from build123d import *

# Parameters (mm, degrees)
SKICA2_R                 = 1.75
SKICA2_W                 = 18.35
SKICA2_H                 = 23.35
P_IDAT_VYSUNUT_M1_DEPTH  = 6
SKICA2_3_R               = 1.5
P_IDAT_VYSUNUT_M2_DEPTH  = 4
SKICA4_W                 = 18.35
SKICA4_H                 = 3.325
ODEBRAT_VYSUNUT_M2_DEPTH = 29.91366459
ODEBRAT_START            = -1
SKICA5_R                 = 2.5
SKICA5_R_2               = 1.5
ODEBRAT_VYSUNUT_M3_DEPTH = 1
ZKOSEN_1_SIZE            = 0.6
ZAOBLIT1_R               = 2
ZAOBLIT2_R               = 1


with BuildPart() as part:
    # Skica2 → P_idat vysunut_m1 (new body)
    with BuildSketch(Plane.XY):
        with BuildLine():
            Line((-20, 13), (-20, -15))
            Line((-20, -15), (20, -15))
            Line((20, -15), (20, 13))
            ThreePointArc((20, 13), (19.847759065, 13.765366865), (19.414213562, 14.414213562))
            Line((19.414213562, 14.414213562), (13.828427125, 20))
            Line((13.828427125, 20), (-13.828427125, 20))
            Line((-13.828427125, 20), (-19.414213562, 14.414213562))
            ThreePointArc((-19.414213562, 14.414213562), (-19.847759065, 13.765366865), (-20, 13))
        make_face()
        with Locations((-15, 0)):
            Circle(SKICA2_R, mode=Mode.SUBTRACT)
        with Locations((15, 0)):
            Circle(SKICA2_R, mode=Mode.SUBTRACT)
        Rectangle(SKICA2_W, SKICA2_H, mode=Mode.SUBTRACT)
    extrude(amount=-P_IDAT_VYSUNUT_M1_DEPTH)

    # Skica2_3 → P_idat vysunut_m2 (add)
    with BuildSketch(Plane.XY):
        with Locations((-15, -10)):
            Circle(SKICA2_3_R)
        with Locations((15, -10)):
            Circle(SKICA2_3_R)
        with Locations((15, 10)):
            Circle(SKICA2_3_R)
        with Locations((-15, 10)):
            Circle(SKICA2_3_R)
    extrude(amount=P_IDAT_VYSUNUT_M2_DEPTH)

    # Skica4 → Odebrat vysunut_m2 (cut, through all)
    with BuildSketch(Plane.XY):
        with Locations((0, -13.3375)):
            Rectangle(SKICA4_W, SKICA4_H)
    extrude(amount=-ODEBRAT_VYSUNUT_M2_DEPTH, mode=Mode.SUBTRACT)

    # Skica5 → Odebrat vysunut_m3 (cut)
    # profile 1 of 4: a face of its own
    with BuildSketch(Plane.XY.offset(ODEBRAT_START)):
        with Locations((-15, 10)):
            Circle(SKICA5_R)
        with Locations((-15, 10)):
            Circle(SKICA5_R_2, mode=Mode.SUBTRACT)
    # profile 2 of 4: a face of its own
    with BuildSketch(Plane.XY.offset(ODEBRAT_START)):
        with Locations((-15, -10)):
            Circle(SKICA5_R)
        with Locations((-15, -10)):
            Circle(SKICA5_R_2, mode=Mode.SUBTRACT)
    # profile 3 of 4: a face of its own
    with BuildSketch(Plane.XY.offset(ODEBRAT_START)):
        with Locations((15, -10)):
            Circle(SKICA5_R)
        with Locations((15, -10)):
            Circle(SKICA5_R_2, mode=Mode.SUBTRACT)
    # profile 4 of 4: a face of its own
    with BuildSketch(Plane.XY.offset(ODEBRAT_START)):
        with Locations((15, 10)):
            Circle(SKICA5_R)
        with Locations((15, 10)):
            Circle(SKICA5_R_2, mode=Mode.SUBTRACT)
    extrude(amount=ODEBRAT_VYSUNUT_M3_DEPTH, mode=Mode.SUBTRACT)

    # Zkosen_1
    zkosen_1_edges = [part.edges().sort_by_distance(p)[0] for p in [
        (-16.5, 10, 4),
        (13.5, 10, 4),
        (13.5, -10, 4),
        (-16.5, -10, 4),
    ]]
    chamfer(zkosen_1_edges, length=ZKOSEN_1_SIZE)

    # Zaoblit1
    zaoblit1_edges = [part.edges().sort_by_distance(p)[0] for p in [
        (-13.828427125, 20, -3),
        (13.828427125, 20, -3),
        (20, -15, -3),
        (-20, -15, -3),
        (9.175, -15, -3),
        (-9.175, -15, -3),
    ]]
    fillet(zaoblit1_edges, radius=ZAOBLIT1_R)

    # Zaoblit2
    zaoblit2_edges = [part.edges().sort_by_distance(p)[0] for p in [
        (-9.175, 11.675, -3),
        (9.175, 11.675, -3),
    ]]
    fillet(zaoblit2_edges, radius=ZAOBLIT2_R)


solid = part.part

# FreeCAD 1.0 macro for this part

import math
import FreeCAD as App
import Part
import Sketcher
from FreeCAD import Vector


def edges_at(feature, points):
    """Names of the edges that pass closest to the given points."""
    edges = feature.Shape.Edges
    near = lambda p: min(range(len(edges)), key=lambda i: edges[i].distToShape(Part.Vertex(*p))[0])
    return sorted({f"Edge{near(p) + 1}" for p in points})


def add_polygon(sketch, points):
    """Adds a closed chain of lines whose ends are joined by coincident constraints."""
    first, n = sketch.GeometryCount, len(points)
    for a, b in zip(points, points[1:] + points[:1]):
        sketch.addGeometry(Part.LineSegment(App.Vector(*a, 0), App.Vector(*b, 0)), False)
    for i in range(n):
        sketch.addConstraint(Sketcher.Constraint("Coincident", first + i, 2, first + (i + 1) % n, 1))

doc = App.newDocument("Part")
body = doc.addObject("PartDesign::Body", "Body")

# Sketch on XY plane
sketch1 = body.newObject("Sketcher::SketchObject", "Sketch")
sketch1.AttachmentSupport = (doc.getObject("XY_Plane"), [""])
sketch1.MapMode = "FlatFace"
sketch1.addGeometry(Part.LineSegment(Vector(-20, 13, 0), Vector(-20, -15, 0)), False)  # 0
sketch1.addGeometry(Part.LineSegment(Vector(-20, -15, 0), Vector(20, -15, 0)), False)  # 1
sketch1.addGeometry(Part.LineSegment(Vector(20, -15, 0), Vector(20, 13, 0)), False)  # 2
sketch1.addGeometry(Part.ArcOfCircle(Part.Circle(Vector(18, 13, 0), Vector(0, 0, 1), 2), math.radians(0), math.radians(45)), False)  # 3
sketch1.addGeometry(Part.LineSegment(Vector(19.414214, 14.414214, 0), Vector(13.828427, 20, 0)), False)  # 4
sketch1.addGeometry(Part.LineSegment(Vector(13.828427, 20, 0), Vector(-13.828427, 20, 0)), False)  # 5
sketch1.addGeometry(Part.LineSegment(Vector(-13.828427, 20, 0), Vector(-19.414214, 14.414214, 0)), False)  # 6
sketch1.addGeometry(Part.ArcOfCircle(Part.Circle(Vector(-18, 13, 0), Vector(0, 0, 1), 2), math.radians(135), math.radians(180)), False)  # 7
sketch1.addGeometry(Part.Circle(Vector(-15, 0, 0), Vector(0, 0, 1), 1.75), False)  # 8
add_polygon(sketch1, [(9.175, -11.675), (-9.175, -11.675), (-9.175, 11.675), (9.175, 11.675)])  # lines 9-12
sketch1.addGeometry(Part.Circle(Vector(15, 0, 0), Vector(0, 0, 1), 1.75), False)  # 13
sketch1.addConstraint([
    Sketcher.Constraint("Coincident", 0, 2, 1, 1),
    Sketcher.Constraint("Coincident", 1, 2, 2, 1),
    Sketcher.Constraint("Tangent", 2, 2, 3, 1),
    Sketcher.Constraint("Tangent", 3, 2, 4, 1),
    Sketcher.Constraint("Coincident", 4, 2, 5, 1),
    Sketcher.Constraint("Coincident", 5, 2, 6, 1),
    Sketcher.Constraint("Tangent", 6, 2, 7, 1),
    Sketcher.Constraint("Tangent", 7, 2, 0, 1),
    Sketcher.Constraint("Vertical", 0),
    Sketcher.Constraint("Horizontal", 1),
    Sketcher.Constraint("Vertical", 2),
    Sketcher.Constraint("Horizontal", 5),
    Sketcher.Constraint("Horizontal", 9),
    Sketcher.Constraint("Vertical", 10),
    Sketcher.Constraint("Horizontal", 11),
    Sketcher.Constraint("Vertical", 12),
    Sketcher.Constraint("Equal", 3, 7),
    Sketcher.Constraint("Equal", 8, 13),
    Sketcher.Constraint("Symmetric", 8, 3, 13, 3, -1, 1),
    Sketcher.Constraint("Symmetric", 9, 2, 11, 2, -1, 1),
    Sketcher.Constraint("Symmetric", 3, 3, 7, 3, -2),
    Sketcher.Constraint("PointOnObject", 8, 3, -1),
    Sketcher.Constraint("Perpendicular", 4, 6),
    Sketcher.Constraint("Horizontal", 3, 2, 6, 2),
    Sketcher.Constraint("Radius", 3, 2.0),
    Sketcher.Constraint("Diameter", 8, 3.5),
    Sketcher.Constraint("DistanceX", 1, 1, 1, 2, 40.0),
    Sketcher.Constraint("DistanceY", 0, 2, 0, 1, 28.0),
    Sketcher.Constraint("DistanceY", -1, 1, 3, 3, 13.0),
    Sketcher.Constraint("DistanceX", 8, 3, -1, 1, 15.0),
    Sketcher.Constraint("DistanceY", -1, 1, 4, 2, 20.0),
    Sketcher.Constraint("DistanceX", 9, 2, 9, 1, 18.35),
    Sketcher.Constraint("DistanceY", 10, 1, 10, 2, 23.35),
])
pad1 = body.newObject("PartDesign::Pad", "Pad")
pad1.Profile = sketch1
pad1.Length = 6
pad1.Reversed = True

# Sketch on XY plane
sketch2 = body.newObject("Sketcher::SketchObject", "Sketch001")
sketch2.AttachmentSupport = (doc.getObject("XY_Plane"), [""])
sketch2.MapMode = "FlatFace"
sketch2.addGeometry([
    Part.Circle(Vector(-15, -10, 0), Vector(0, 0, 1), 1.5),
    Part.Circle(Vector(15, -10, 0), Vector(0, 0, 1), 1.5),
    Part.Circle(Vector(15, 10, 0), Vector(0, 0, 1), 1.5),
    Part.Circle(Vector(-15, 10, 0), Vector(0, 0, 1), 1.5),
], False)
sketch2.addConstraint([
    Sketcher.Constraint("Equal", 0, 1),
    Sketcher.Constraint("Equal", 1, 2),
    Sketcher.Constraint("Equal", 2, 3),
    Sketcher.Constraint("Symmetric", 0, 3, 2, 3, -1, 1),
    Sketcher.Constraint("Symmetric", 1, 3, 3, 3, -1, 1),
    Sketcher.Constraint("Symmetric", 0, 3, 1, 3, -2),
    Sketcher.Constraint("Diameter", 0, 3.0),
    Sketcher.Constraint("DistanceX", 0, 3, -1, 1, 15.0),
    Sketcher.Constraint("DistanceY", 0, 3, -1, 1, 10.0),
])
pad2 = body.newObject("PartDesign::Pad", "Pad001")
pad2.Profile = sketch2
pad2.Length = 4

# Sketch on XY plane
sketch3 = body.newObject("Sketcher::SketchObject", "Sketch002")
sketch3.AttachmentSupport = (doc.getObject("XY_Plane"), [""])
sketch3.MapMode = "FlatFace"
add_polygon(sketch3, [(-9.175, -11.675), (-9.175, -15), (9.175, -15), (9.175, -11.675)])  # lines 0-3
sketch3.addConstraint([
    Sketcher.Constraint("Vertical", 0),
    Sketcher.Constraint("Horizontal", 1),
    Sketcher.Constraint("Vertical", 2),
    Sketcher.Constraint("Horizontal", 3),
    Sketcher.Constraint("DistanceY", 0, 2, -1, 1, 15.0),
    Sketcher.Constraint("DistanceX", 1, 1, 1, 2, 18.35),
    Sketcher.Constraint("DistanceY", 0, 2, 0, 1, 3.325),
    Sketcher.Constraint("DistanceX", 0, 2, -1, 1, 9.175),
])
pocket1 = body.newObject("PartDesign::Pocket", "Pocket")
pocket1.Profile = sketch3
pocket1.Type = "ThroughAll"

# Sketch on XY plane
sketch4 = body.newObject("Sketcher::SketchObject", "Sketch003")
sketch4.AttachmentSupport = (doc.getObject("XY_Plane"), [""])
sketch4.MapMode = "FlatFace"
sketch4.AttachmentOffset = App.Placement(Vector(0, 0, -1), App.Rotation())
sketch4.addGeometry([
    Part.Circle(Vector(-15, 10, 0), Vector(0, 0, 1), 2.5),  # 0
    Part.Circle(Vector(-15, 10, 0), Vector(0, 0, 1), 1.5),  # 1
    Part.Circle(Vector(-15, -10, 0), Vector(0, 0, 1), 2.5),  # 2
    Part.Circle(Vector(-15, -10, 0), Vector(0, 0, 1), 1.5),  # 3
    Part.Circle(Vector(15, -10, 0), Vector(0, 0, 1), 2.5),  # 4
    Part.Circle(Vector(15, -10, 0), Vector(0, 0, 1), 1.5),  # 5
    Part.Circle(Vector(15, 10, 0), Vector(0, 0, 1), 2.5),  # 6
    Part.Circle(Vector(15, 10, 0), Vector(0, 0, 1), 1.5),  # 7
], False)
sketch4.addConstraint([
    Sketcher.Constraint("Coincident", 1, 3, 0, 3),
    Sketcher.Constraint("Coincident", 3, 3, 2, 3),
    Sketcher.Constraint("Coincident", 5, 3, 4, 3),
    Sketcher.Constraint("Coincident", 7, 3, 6, 3),
    Sketcher.Constraint("Equal", 0, 2),
    Sketcher.Constraint("Equal", 1, 3),
    Sketcher.Constraint("Equal", 2, 4),
    Sketcher.Constraint("Equal", 3, 5),
    Sketcher.Constraint("Equal", 4, 6),
    Sketcher.Constraint("Equal", 5, 7),
    Sketcher.Constraint("Symmetric", 0, 3, 4, 3, -1, 1),
    Sketcher.Constraint("Symmetric", 2, 3, 6, 3, -1, 1),
    Sketcher.Constraint("Symmetric", 2, 3, 4, 3, -2),
    Sketcher.Constraint("Diameter", 0, 5.0),
    Sketcher.Constraint("Diameter", 1, 3.0),
    Sketcher.Constraint("DistanceX", 0, 3, -1, 1, 15.0),
    Sketcher.Constraint("DistanceY", -1, 1, 0, 3, 10.0),
])
pocket2 = body.newObject("PartDesign::Pocket", "Pocket001")
pocket2.Profile = sketch4
pocket2.Length = 1
pocket2.Reversed = True
doc.recompute()

chamfer = body.newObject("PartDesign::Chamfer", "Chamfer")
chamfer.Base = (pocket2, edges_at(pocket2, [
    (-16.5, 10, 4),
    (13.5, 10, 4),
    (13.5, -10, 4),
    (-16.5, -10, 4),
]))
chamfer.Size = 0.6
doc.recompute()

fillet = body.newObject("PartDesign::Fillet", "Fillet")
fillet.Base = (chamfer, edges_at(chamfer, [
    (-13.828, 20, -3),
    (13.828, 20, -3),
    (20, -15, -3),
    (-20, -15, -3),
    (9.175, -15, -3),
    (-9.175, -15, -3),
]))
fillet.Radius = 2
doc.recompute()

fillet2 = body.newObject("PartDesign::Fillet", "Fillet001")
fillet2.Base = (fillet, edges_at(fillet, [(-9.175, 11.675, -3), (9.175, 11.675, -3)]))
fillet2.Radius = 1

doc.recompute()
